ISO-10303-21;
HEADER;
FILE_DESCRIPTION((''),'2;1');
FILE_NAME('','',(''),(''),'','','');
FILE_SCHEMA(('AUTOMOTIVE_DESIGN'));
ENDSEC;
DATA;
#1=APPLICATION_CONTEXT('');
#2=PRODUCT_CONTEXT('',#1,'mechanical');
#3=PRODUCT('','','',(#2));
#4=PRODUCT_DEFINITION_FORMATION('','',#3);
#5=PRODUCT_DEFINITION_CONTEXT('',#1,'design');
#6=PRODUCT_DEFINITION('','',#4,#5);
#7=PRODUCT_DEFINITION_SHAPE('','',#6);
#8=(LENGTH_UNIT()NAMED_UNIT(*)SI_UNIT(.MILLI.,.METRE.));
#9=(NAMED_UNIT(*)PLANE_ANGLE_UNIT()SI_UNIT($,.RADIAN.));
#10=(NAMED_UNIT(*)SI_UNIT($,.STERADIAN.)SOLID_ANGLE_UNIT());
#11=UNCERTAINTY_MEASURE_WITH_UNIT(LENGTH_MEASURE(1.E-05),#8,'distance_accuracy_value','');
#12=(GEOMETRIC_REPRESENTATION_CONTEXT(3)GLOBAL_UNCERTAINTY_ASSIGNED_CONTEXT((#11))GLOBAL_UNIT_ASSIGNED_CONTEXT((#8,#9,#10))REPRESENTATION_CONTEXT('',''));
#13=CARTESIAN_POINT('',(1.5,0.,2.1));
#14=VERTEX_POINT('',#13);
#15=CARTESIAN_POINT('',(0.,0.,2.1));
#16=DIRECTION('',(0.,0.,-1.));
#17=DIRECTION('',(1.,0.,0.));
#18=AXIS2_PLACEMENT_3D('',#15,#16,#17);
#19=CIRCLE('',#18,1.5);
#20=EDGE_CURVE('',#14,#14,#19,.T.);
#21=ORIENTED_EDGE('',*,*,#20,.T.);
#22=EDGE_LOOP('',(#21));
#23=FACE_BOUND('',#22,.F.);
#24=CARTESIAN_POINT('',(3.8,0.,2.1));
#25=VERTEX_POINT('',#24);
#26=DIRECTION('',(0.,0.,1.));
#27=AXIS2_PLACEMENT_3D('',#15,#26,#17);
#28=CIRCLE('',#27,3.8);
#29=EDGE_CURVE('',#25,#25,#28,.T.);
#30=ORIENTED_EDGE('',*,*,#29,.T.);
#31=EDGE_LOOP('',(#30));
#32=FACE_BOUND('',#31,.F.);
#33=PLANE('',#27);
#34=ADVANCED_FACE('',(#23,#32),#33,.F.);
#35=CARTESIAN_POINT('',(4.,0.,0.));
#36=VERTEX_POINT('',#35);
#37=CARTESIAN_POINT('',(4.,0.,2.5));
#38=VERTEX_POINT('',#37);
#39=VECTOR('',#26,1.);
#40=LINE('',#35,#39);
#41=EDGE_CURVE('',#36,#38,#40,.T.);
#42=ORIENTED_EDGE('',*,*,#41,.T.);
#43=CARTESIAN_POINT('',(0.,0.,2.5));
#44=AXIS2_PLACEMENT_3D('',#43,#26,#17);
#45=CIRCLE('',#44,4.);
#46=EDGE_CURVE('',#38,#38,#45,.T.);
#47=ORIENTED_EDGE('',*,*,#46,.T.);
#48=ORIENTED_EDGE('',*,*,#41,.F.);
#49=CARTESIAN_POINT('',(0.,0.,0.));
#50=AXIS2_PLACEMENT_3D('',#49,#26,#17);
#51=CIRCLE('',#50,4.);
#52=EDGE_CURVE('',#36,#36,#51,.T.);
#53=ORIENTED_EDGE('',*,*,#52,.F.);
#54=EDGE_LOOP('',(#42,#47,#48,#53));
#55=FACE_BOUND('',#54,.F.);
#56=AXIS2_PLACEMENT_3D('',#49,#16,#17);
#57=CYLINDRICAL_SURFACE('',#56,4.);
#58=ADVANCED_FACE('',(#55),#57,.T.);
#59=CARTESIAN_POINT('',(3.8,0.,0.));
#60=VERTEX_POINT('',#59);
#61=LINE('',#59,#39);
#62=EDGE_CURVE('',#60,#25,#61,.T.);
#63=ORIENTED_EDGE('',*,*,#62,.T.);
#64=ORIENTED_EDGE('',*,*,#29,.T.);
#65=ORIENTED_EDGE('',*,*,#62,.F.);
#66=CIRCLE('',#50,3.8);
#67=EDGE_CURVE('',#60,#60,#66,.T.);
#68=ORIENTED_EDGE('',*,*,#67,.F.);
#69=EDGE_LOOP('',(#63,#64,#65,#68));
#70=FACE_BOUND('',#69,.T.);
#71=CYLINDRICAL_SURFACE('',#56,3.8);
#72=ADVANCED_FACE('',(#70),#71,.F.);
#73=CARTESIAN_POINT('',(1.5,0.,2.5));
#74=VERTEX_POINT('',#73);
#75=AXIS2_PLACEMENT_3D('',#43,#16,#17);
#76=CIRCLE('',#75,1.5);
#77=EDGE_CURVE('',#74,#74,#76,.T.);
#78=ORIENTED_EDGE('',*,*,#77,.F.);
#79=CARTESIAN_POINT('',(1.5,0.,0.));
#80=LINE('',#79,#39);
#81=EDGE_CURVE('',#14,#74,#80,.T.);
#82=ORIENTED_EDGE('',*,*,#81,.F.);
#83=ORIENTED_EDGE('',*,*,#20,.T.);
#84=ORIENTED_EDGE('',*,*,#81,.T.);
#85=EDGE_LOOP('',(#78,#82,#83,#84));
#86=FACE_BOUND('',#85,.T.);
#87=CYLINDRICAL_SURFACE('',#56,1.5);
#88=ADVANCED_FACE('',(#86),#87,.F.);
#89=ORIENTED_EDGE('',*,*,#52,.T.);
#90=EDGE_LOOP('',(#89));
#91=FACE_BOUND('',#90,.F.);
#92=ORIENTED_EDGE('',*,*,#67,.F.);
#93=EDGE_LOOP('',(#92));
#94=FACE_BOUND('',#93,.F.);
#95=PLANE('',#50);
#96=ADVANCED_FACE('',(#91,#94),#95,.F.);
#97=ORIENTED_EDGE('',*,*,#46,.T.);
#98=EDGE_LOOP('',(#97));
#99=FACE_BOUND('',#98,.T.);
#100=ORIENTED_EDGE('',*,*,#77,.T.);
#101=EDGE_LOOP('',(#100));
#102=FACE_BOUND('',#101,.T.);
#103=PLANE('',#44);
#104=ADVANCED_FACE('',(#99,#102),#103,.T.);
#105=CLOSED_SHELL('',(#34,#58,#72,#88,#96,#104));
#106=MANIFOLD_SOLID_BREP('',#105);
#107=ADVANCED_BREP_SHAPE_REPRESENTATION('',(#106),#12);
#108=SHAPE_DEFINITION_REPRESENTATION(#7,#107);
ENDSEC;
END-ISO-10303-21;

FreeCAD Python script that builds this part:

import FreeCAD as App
import Part
import Sketcher

V = App.Vector
Q = App.Units.Quantity

doc = App.newDocument("Part")
body = doc.addObject("PartDesign::Body", "Body")

# Sketch on XY plane
sketch1 = body.newObject("Sketcher::SketchObject", "Sketch")
sketch1.AttachmentSupport = (doc.getObject("XY_Plane"), [""])
sketch1.MapMode = "FlatFace"
sketch1.addGeometry(Part.Circle(V(0, 0, 0), V(0, 0, 1), 1.5), False)
sketch1.addConstraint(Sketcher.Constraint("Coincident", 0, 3, -1, 1))
sketch1.addConstraint(Sketcher.Constraint("Diameter", 0, Q("3 mm")))
pad1 = body.newObject("PartDesign::Pad", "Pad")
pad1.Profile = sketch1
pad1.Length = 3
body2 = doc.addObject("PartDesign::Body", "Body001")

# Sketch on XY plane
sketch2 = body2.newObject("Sketcher::SketchObject", "Sketch001")
sketch2.AttachmentSupport = (doc.getObject("XY_Plane001"), [""])
sketch2.MapMode = "FlatFace"
sketch2.addGeometry(Part.Circle(V(0, 0, 0), V(0, 0, 1), 3.8), False)
sketch2.addConstraint(Sketcher.Constraint("Coincident", 0, 3, -1, 1))
sketch2.addConstraint(Sketcher.Constraint("Diameter", 0, Q("7.6 mm")))
pad2 = body2.newObject("PartDesign::Pad", "Pad001")
pad2.Profile = sketch2
pad2.Length = 2.1
doc.recompute()

boolean = body2.newObject("PartDesign::Boolean", "Boolean")
boolean.Type = "Fuse"
boolean.addObjects([body])
body3 = doc.addObject("PartDesign::Body", "Body002")

# Sketch on XY plane
sketch3 = body3.newObject("Sketcher::SketchObject", "Sketch002")
sketch3.AttachmentSupport = (doc.getObject("XY_Plane002"), [""])
sketch3.MapMode = "FlatFace"
sketch3.addGeometry(Part.Circle(V(0, 0, 0), V(0, 0, 1), 4), False)
sketch3.addConstraint(Sketcher.Constraint("Coincident", 0, 3, -1, 1))
sketch3.addConstraint(Sketcher.Constraint("Diameter", 0, Q("8 mm")))
pad3 = body3.newObject("PartDesign::Pad", "Pad002")
pad3.Profile = sketch3
pad3.Length = 2.5
doc.recompute()

boolean2 = body3.newObject("PartDesign::Boolean", "Boolean001")
boolean2.Type = "Cut"
boolean2.addObjects([body2])

doc.recompute()
